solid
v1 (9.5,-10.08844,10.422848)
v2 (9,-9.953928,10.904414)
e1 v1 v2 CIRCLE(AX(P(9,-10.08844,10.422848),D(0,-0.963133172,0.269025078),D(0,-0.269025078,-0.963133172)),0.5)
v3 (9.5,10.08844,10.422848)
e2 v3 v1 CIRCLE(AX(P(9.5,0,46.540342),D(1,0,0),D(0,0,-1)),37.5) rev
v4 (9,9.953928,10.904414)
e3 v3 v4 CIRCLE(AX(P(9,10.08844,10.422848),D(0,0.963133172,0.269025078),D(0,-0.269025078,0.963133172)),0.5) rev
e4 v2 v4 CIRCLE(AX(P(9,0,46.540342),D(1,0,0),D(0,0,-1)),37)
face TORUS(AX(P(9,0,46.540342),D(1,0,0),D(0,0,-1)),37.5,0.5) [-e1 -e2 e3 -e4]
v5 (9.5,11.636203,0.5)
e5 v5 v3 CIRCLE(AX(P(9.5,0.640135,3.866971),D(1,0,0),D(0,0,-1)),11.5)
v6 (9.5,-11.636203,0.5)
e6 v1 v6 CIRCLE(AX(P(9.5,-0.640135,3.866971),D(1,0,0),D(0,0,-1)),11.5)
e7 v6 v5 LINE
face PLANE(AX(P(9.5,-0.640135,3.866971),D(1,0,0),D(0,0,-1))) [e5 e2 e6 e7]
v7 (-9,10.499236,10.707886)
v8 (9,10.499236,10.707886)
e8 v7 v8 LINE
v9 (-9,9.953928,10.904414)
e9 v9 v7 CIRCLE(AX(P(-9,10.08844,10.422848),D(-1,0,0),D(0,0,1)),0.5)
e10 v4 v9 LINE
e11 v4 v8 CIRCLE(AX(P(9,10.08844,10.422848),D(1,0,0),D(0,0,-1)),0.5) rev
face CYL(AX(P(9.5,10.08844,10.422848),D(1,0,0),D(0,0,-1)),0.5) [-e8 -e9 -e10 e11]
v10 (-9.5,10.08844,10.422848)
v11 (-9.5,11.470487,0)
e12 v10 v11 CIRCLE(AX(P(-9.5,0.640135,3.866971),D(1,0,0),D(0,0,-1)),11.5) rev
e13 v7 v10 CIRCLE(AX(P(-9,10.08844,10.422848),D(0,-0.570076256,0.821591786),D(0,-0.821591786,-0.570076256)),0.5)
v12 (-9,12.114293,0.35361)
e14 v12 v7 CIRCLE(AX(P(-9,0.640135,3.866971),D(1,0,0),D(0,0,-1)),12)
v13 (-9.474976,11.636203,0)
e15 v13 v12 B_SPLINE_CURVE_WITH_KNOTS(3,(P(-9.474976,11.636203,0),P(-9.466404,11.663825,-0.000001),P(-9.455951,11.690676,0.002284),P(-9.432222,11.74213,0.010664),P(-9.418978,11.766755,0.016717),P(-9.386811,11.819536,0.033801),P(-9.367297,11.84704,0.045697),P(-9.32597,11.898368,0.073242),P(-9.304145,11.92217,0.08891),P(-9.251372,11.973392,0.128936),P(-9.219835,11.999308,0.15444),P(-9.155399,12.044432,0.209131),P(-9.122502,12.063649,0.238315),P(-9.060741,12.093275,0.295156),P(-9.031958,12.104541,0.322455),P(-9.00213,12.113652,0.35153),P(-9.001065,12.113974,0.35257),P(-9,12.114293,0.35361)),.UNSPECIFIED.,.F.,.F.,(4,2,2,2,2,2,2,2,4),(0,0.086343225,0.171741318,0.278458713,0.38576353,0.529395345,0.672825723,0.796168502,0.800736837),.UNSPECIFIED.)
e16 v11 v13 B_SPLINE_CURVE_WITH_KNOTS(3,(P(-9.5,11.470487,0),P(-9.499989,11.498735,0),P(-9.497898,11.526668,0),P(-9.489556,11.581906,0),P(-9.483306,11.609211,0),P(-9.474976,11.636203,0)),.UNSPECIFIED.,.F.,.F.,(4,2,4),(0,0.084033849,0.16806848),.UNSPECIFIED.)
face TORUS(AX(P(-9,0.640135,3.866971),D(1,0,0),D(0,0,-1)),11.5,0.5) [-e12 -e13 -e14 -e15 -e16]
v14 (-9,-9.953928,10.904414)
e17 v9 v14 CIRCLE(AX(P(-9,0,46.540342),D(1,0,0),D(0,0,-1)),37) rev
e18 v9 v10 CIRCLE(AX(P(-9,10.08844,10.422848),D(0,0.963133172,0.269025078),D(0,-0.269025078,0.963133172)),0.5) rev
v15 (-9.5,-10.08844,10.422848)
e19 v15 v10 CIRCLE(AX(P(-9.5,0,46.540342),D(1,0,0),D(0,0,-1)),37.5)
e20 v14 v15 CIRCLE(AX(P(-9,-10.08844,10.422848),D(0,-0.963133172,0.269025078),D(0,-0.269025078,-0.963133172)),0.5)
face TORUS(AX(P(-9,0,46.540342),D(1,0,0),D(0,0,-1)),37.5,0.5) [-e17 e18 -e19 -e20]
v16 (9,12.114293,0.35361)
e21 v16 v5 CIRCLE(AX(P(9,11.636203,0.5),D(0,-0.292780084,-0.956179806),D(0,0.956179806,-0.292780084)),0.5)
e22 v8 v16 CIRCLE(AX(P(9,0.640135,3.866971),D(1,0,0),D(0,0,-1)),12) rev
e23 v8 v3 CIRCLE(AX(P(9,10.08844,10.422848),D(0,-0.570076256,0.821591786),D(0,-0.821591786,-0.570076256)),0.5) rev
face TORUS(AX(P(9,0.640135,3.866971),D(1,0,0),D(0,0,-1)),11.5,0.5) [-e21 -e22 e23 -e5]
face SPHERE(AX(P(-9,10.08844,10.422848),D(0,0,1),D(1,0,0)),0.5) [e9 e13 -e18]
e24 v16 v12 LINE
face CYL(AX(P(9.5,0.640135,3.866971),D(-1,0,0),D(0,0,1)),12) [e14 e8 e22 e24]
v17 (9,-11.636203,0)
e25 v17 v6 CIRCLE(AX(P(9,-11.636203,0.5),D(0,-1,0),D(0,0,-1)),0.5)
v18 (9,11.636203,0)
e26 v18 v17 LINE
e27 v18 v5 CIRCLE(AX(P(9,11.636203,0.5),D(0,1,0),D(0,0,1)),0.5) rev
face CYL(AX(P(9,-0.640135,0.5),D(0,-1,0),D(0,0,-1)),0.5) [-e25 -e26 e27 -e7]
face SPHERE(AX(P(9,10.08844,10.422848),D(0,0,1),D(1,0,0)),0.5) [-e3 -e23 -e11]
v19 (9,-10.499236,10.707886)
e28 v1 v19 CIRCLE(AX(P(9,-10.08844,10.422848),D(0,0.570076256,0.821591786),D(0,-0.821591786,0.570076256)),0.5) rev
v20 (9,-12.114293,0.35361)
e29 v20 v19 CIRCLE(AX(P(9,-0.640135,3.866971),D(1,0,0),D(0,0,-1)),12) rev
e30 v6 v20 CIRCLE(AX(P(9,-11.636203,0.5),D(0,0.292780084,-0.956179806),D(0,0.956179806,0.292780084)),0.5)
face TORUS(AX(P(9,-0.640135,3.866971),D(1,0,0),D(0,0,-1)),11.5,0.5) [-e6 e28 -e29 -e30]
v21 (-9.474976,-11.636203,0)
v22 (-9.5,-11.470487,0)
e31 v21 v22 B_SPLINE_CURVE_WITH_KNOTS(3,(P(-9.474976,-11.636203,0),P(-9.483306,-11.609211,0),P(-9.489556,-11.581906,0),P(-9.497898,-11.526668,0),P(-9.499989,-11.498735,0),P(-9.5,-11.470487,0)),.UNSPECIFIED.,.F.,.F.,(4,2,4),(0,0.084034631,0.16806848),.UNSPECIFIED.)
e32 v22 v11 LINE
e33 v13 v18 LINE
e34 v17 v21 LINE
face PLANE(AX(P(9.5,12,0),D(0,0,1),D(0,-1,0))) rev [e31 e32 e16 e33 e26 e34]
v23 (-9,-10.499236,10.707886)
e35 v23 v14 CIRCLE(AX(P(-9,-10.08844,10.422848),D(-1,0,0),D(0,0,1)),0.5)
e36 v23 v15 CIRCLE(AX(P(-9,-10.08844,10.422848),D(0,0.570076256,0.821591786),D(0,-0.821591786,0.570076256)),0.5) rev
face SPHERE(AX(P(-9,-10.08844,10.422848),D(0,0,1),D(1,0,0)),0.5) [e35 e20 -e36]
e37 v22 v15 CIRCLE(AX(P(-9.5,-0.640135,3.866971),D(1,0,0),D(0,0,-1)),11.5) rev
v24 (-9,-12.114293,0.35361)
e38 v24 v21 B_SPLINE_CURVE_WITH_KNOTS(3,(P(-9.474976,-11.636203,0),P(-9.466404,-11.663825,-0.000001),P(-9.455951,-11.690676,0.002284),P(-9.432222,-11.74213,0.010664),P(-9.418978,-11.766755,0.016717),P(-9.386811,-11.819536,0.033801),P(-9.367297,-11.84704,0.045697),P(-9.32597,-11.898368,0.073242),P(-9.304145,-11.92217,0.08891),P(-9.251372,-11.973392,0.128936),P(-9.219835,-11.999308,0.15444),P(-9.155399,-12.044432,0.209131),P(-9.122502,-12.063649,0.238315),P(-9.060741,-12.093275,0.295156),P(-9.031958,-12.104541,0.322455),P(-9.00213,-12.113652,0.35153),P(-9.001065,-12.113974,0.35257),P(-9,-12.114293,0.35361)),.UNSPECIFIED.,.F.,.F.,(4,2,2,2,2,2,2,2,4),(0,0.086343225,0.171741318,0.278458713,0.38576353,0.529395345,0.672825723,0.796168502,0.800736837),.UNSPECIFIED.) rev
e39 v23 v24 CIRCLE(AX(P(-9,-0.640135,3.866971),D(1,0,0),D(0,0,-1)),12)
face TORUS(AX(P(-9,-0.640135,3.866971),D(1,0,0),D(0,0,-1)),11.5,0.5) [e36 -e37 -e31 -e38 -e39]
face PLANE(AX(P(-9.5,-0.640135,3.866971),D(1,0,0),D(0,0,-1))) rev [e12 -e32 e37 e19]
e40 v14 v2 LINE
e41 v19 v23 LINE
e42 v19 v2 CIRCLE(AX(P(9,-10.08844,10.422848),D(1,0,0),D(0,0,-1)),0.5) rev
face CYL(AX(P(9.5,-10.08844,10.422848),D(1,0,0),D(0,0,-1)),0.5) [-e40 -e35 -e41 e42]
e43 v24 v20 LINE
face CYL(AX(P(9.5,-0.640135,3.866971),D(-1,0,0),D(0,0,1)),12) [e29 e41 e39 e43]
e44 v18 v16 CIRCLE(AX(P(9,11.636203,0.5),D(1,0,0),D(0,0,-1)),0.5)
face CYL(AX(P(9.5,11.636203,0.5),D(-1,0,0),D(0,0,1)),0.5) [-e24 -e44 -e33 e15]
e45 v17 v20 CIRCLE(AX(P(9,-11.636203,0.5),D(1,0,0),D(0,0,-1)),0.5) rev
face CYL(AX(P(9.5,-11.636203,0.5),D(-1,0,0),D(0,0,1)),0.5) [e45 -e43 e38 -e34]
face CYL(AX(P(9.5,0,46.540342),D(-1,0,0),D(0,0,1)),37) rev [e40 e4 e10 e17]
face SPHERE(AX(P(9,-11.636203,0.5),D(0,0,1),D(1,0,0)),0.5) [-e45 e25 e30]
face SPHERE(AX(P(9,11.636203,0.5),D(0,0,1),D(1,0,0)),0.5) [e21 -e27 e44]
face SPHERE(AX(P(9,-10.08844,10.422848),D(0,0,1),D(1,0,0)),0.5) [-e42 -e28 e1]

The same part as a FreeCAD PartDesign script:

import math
import FreeCAD as App
import Part
import Sketcher
from FreeCAD import Vector
Q = App.Units.Quantity


def edges_at(feature, points):
    """Names of the edges that pass closest to the given points."""
    edges = feature.Shape.Edges
    near = lambda p: min(range(len(edges)), key=lambda i: edges[i].distToShape(Part.Vertex(*p))[0])
    return sorted({f"Edge{near(p) + 1}" for p in points})

doc = App.newDocument("Part")
body = doc.addObject("PartDesign::Body", "Body")

# Sketch on YZ plane
sketch1 = doc.addObject("Sketcher::SketchObject", "Sketch")
body.addObject(sketch1)
sketch1.AttachmentSupport = (doc.YZ_Plane, [""])
sketch1.MapMode = "FlatFace"
sketch1.addGeometry(Part.LineSegment(Vector(-12, 0, 0), Vector(12, 0, 0)), False)
sketch1.addGeometry(Part.ArcOfCircle(Part.Circle(Vector(1, 4, 0), Vector(0, 0, 1), 12), math.radians(-19), math.radians(36)), False)
sketch1.addGeometry(Part.ArcOfCircle(Part.Circle(Vector(0, 47, 0), Vector(0, 0, 1), 37), math.radians(-106), math.radians(-74)), False)
sketch1.addGeometry(Part.ArcOfCircle(Part.Circle(Vector(-1, 4, 0), Vector(0, 0, 1), 12), math.radians(144), math.radians(199)), False)
sketch1.addConstraint(Sketcher.Constraint("Coincident", 0, 2, 1, 1))
sketch1.addConstraint(Sketcher.Constraint("Coincident", 1, 2, 2, 2))
sketch1.addConstraint(Sketcher.Constraint("Coincident", 2, 1, 3, 1))
sketch1.addConstraint(Sketcher.Constraint("Coincident", 3, 2, 0, 1))
sketch1.addConstraint(Sketcher.Constraint("Horizontal", 0))
sketch1.addConstraint(Sketcher.Constraint("Equal", 1, 3))
sketch1.addConstraint(Sketcher.Constraint("Symmetric", 0, 2, 3, 2, -1, 1))
sketch1.addConstraint(Sketcher.Constraint("Symmetric", 1, 2, 2, 1, -2))
sketch1.addConstraint(Sketcher.Constraint("Radius", 1, Q("12 mm")))
sketch1.addConstraint(Sketcher.Constraint("Radius", 2, Q("37 mm")))
sketch1.addConstraint(Sketcher.Constraint("DistanceX", 0, 1, 0, 2, Q("24 mm")))
sketch1.addConstraint(Sketcher.Constraint("DistanceY", -1, 1, 1, 2, Q("11 mm")))
sketch1.addConstraint(Sketcher.Constraint("DistanceX", -1, 1, 1, 2, Q("10.29 mm")))
pad1 = doc.addObject("PartDesign::Pad", "Pad")
body.addObject(pad1)
pad1.Profile = sketch1
pad1.Length = 19
pad1.Midplane = True
doc.recompute()

fillet = doc.addObject("PartDesign::Fillet", "Fillet")
body.addObject(fillet)
fillet.Base = (pad1, edges_at(pad1, [
    (9.5, 12.498, 5.71),
    (9.5, 0, 9.54),
    (9.5, -12.498, 5.71),
    (-9.5, 0, 9.54),
    (-9.5, 12.498, 5.71),
    (-9.5, -12.498, 5.71),
    (0, -10.29, 11),
    (0, 10.29, 11),
    (0, 12, 0),
    (0, -12, 0),
    (9.5, 0, 0),
]))
fillet.Radius = 0.5

doc.recompute()
